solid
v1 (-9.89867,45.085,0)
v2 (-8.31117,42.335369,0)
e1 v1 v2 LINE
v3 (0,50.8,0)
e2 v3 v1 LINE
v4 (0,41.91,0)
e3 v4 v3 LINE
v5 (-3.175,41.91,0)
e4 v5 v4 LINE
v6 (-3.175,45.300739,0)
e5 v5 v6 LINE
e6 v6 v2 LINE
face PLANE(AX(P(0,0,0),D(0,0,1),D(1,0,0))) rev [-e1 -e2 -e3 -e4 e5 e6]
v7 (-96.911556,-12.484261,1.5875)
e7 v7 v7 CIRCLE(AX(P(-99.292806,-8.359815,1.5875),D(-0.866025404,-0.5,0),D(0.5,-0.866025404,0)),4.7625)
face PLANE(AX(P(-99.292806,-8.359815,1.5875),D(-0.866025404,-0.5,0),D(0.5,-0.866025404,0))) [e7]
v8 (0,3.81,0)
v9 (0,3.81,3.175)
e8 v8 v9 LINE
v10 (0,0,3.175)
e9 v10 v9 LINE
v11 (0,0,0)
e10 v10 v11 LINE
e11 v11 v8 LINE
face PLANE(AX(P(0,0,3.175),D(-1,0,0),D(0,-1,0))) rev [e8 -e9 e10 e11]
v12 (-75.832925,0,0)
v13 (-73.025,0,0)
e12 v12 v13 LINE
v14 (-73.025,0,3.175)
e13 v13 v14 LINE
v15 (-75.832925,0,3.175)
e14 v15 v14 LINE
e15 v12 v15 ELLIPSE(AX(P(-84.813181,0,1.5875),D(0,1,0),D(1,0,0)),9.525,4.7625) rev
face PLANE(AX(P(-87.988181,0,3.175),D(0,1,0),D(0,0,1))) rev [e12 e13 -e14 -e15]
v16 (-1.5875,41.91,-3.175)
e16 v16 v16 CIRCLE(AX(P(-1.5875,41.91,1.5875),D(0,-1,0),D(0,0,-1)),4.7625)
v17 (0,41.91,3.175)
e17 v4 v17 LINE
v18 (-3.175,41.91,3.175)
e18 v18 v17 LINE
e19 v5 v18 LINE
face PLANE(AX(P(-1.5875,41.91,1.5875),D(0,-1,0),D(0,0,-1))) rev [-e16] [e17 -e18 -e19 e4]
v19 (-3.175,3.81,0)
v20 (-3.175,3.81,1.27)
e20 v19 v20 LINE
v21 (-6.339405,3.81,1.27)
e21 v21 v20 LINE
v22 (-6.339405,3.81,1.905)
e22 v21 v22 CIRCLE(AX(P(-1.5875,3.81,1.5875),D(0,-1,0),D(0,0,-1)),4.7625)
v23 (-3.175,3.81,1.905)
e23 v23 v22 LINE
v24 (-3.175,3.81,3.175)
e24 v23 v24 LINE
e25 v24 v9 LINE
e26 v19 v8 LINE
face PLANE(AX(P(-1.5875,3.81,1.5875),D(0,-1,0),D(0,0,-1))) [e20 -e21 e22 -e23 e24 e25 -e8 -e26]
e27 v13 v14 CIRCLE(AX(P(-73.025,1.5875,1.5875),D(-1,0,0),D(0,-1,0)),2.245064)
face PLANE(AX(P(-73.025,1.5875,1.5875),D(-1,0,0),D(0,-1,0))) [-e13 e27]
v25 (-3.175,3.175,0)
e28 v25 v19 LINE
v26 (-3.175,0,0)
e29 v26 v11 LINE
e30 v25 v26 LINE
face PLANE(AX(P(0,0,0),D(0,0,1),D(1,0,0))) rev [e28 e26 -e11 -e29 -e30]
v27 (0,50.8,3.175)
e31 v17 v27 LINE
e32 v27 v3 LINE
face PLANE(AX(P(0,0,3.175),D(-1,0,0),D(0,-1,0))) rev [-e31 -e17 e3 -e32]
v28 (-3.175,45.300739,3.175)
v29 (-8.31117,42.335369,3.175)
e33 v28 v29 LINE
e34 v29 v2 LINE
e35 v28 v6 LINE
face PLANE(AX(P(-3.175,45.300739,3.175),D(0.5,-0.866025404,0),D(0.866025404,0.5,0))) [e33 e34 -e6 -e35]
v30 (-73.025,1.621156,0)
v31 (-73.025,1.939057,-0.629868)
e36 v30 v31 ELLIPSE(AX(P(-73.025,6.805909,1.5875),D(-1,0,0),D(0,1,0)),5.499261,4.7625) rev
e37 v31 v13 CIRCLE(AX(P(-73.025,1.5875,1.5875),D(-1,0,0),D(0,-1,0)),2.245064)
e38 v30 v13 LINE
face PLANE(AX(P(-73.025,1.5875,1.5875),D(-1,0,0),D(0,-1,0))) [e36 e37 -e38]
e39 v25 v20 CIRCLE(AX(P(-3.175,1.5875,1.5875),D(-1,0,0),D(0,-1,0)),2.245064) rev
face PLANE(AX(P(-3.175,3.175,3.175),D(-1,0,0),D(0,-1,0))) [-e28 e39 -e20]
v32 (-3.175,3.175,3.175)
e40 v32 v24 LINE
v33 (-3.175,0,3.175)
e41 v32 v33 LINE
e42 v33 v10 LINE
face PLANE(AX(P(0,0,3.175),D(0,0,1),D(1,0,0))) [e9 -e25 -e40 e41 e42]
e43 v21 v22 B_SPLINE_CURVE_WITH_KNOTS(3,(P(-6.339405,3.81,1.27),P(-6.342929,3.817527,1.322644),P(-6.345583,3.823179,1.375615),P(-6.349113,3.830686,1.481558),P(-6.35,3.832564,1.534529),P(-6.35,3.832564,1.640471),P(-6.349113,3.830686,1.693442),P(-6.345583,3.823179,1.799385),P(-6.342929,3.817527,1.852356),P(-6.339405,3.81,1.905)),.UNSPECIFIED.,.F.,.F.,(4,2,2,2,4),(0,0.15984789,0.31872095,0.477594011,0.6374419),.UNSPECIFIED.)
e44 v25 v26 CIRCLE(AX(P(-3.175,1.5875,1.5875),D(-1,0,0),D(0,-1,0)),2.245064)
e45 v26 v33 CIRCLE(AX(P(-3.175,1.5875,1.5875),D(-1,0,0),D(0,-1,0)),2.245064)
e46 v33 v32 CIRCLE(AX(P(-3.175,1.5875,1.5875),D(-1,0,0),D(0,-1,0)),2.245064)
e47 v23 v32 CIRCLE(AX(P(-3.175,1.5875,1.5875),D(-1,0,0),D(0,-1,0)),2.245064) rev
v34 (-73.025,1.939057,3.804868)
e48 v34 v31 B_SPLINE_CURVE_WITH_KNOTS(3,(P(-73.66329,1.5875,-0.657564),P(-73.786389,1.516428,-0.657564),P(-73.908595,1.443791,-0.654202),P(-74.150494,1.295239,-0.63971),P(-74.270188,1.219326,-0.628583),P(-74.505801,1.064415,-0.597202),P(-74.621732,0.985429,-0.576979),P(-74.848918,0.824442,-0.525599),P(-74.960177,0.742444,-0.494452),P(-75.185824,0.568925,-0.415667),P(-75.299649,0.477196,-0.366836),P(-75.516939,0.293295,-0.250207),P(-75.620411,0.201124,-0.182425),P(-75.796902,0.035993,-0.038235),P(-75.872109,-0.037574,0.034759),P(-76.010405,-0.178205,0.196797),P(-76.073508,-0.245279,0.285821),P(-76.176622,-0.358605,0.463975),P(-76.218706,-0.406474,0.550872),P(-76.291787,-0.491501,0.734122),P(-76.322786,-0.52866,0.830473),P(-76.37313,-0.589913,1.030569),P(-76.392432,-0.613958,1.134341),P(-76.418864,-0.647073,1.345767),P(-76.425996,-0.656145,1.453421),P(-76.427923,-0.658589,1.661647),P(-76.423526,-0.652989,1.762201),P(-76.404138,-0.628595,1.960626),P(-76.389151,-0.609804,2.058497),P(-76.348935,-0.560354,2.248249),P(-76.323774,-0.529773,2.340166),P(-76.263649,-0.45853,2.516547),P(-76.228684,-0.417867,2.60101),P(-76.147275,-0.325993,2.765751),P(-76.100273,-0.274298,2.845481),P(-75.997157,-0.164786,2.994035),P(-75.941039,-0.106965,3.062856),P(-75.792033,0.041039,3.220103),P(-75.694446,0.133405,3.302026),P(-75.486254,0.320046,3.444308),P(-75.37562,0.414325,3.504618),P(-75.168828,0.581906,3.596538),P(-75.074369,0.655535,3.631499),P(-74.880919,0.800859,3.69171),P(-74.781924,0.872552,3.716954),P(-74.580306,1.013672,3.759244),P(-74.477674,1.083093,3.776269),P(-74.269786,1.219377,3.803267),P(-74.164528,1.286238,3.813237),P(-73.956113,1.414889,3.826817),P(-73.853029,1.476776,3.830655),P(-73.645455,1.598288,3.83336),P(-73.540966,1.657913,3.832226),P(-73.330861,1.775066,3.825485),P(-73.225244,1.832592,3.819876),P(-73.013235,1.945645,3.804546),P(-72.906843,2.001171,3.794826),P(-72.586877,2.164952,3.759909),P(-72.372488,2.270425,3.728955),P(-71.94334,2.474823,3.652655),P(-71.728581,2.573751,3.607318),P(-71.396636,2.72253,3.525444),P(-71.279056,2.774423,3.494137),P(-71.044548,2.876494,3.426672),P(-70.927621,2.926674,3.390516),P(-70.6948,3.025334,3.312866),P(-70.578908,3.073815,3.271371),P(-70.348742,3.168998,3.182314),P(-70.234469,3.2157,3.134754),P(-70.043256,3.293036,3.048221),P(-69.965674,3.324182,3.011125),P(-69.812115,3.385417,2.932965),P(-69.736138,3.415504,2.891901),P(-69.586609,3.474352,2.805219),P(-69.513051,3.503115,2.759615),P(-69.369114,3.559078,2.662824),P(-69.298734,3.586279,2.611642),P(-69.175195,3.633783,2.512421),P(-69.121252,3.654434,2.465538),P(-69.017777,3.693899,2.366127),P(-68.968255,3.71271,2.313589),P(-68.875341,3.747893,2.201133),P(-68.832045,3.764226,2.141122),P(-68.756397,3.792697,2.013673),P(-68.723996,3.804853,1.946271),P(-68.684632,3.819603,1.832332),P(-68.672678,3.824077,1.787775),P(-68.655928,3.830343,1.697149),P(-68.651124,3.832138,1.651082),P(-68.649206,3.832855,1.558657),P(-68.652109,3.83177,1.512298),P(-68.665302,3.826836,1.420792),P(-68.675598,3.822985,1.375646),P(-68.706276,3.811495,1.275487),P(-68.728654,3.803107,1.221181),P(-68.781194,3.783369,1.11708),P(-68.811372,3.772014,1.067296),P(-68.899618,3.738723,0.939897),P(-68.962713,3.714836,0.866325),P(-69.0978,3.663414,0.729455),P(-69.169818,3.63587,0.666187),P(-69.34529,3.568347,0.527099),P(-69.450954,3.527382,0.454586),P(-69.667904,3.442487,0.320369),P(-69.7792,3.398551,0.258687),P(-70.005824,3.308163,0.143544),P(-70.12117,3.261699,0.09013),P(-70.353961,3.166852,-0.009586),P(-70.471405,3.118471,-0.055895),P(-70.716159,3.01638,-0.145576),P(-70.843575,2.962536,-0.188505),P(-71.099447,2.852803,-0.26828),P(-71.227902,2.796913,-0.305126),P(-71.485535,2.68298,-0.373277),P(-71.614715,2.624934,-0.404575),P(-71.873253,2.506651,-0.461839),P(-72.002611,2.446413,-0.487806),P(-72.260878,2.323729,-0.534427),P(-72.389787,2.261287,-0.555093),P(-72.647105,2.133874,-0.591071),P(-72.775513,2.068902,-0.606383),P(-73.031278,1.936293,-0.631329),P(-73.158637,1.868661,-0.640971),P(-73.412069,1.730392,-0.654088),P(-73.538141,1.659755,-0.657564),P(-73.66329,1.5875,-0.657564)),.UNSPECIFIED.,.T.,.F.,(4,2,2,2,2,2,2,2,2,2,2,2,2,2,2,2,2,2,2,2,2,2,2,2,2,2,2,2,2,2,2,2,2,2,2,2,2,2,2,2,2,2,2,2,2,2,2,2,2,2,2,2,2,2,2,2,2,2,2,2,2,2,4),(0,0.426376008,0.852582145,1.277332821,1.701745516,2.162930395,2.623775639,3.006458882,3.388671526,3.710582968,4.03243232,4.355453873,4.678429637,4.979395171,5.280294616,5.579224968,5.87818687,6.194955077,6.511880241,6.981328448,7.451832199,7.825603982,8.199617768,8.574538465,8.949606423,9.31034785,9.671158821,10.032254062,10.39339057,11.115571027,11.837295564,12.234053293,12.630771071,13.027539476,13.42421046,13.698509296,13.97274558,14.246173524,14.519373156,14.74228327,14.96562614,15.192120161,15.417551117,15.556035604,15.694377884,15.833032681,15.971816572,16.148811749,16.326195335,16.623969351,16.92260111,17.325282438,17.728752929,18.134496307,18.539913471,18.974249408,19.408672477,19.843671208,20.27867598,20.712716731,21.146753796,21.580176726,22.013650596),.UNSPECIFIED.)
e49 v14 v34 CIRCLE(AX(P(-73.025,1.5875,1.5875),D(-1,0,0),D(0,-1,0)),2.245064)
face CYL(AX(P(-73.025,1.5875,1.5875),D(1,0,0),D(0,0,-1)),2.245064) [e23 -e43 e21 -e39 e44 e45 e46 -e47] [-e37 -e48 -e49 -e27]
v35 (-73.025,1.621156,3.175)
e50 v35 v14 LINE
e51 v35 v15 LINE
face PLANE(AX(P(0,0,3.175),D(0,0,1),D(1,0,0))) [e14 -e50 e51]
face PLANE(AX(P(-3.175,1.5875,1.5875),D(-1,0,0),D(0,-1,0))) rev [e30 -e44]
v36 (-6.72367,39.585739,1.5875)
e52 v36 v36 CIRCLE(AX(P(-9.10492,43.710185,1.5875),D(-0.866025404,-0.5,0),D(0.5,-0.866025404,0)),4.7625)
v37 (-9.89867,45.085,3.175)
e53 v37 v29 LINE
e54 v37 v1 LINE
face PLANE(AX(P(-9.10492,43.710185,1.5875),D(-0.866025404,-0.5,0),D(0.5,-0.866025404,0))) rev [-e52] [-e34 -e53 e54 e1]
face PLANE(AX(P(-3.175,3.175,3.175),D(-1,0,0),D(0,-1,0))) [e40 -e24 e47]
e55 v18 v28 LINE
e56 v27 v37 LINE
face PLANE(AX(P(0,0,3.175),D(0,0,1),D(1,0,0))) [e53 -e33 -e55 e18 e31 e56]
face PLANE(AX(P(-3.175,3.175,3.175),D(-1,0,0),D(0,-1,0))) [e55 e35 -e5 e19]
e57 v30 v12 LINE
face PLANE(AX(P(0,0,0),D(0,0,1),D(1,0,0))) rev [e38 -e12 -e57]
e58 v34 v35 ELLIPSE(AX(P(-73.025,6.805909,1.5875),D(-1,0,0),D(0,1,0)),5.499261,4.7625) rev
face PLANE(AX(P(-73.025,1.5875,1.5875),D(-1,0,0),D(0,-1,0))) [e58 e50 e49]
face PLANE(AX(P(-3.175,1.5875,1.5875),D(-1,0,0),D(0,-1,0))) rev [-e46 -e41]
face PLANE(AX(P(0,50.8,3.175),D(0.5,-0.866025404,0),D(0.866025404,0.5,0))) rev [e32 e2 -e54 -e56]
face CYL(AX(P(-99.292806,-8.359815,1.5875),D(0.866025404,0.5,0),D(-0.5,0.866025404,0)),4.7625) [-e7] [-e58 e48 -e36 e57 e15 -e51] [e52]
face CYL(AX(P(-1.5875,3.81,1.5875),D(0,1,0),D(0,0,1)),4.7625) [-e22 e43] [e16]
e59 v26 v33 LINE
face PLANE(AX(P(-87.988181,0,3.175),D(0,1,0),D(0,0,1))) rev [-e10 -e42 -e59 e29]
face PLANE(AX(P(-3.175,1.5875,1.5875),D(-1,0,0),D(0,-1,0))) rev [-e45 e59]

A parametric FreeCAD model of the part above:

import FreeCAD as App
import Part
import Sketcher
from FreeCAD import Vector
Q = App.Units.Quantity

doc = App.newDocument("Part")
params = doc.addObject("Spreadsheet::Sheet", "Params")
for row, (alias, value) in enumerate([
    ("sketch1_height", "2 in"),
    ("sketch1_length", "4 in"),
    ("pad1_length", "0.125 in"),
    ("pad2_length", "2.75 in"),
    ("sketch3_diameter", "0.375 in"),
    ("pad3_length", "1.5 in"),
    ("sketch4_diameter", "0.375 in"),
    ("pad4_length", "4.1 in"),
], start=1):
    params.set(f"A{row}", alias)
    params.set(f"B{row}", "=" + value)
    params.setAlias(f"B{row}", alias)

body = doc.addObject("PartDesign::Body", "Body")

# Sketch on XY plane
sketch1 = body.newObject("Sketcher::SketchObject", "Sketch")
sketch1.AttachmentSupport = (doc.getObject("XY_Plane"), [""])
sketch1.MapMode = "FlatFace"
sketch1.addGeometry(Part.LineSegment(Vector(0, 0, 0), Vector(0, 50.8, 0)), False)
sketch1.addGeometry(Part.LineSegment(Vector(0, 50.8, 0), Vector(-87.988181, 0, 0)), False)
sketch1.addGeometry(Part.LineSegment(Vector(-87.988181, 0, 0), Vector(0, 0, 0)), False)
sketch1.addGeometry(Part.LineSegment(Vector(-3.175, 3.175, 0), Vector(-76.13892, 3.175, 0)), False)
sketch1.addGeometry(Part.LineSegment(Vector(-76.13892, 3.175, 0), Vector(-3.175, 45.300739, 0)), False)
sketch1.addGeometry(Part.LineSegment(Vector(-3.175, 45.300739, 0), Vector(-3.175, 3.175, 0)), False)
sketch1.addConstraint(Sketcher.Constraint("Coincident", 0, 2, 1, 1))
sketch1.addConstraint(Sketcher.Constraint("Coincident", 1, 2, 2, 1))
sketch1.addConstraint(Sketcher.Constraint("Coincident", 2, 2, 0, 1))
sketch1.addConstraint(Sketcher.Constraint("Coincident", 3, 2, 4, 1))
sketch1.addConstraint(Sketcher.Constraint("Coincident", 4, 2, 5, 1))
sketch1.addConstraint(Sketcher.Constraint("Coincident", 5, 2, 3, 1))
sketch1.addConstraint(Sketcher.Constraint("Vertical", 0))
sketch1.addConstraint(Sketcher.Constraint("Horizontal", 2))
sketch1.addConstraint(Sketcher.Constraint("Horizontal", 3))
sketch1.addConstraint(Sketcher.Constraint("Vertical", 5))
sketch1.addConstraint(Sketcher.Constraint("Coincident", 2, 2, -1, 1))
sketch1.addConstraint(Sketcher.Constraint("Parallel", 1, 4))
sketch1.addConstraint(Sketcher.Constraint("DistanceY", 0, 1, 0, 2, Q("2 in")))
sketch1.addConstraint(Sketcher.Constraint("Distance", 1, Q("4 in")))
sketch1.addConstraint(Sketcher.Constraint("DistanceY", -1, 1, 3, 2, Q("0.125 in")))
sketch1.addConstraint(Sketcher.Constraint("DistanceX", 4, 2, -1, 1, Q("0.125 in")))
sketch1.addConstraint(Sketcher.Constraint("DistanceX", 3, 2, 3, 1, Q("72.96392 mm")))
sketch1.setExpression("Constraints[12]", "Params.sketch1_height")
sketch1.setExpression("Constraints[13]", "Params.sketch1_length")
pad1 = body.newObject("PartDesign::Pad", "Pad")
pad1.Profile = sketch1
pad1.setExpression("Length", "Params.pad1_length")

# Sketch on YZ plane
sketch2 = body.newObject("Sketcher::SketchObject", "Sketch001")
sketch2.AttachmentSupport = (doc.getObject("YZ_Plane"), [""])
sketch2.MapMode = "FlatFace"
sketch2.AttachmentOffset = App.Placement(Vector(0, 0, -0.125 * 25.4), App.Rotation())
sketch2.addGeometry(Part.Circle(Vector(1.5875, 1.5875, 0), Vector(0, 0, 1), 2.245064), False)
sketch2.addConstraint(Sketcher.Constraint("Diameter", 0, Q("4.490128 mm")))
sketch2.addConstraint(Sketcher.Constraint("DistanceX", -1, 1, 0, 3, Q("0.0625 in")))
sketch2.addConstraint(Sketcher.Constraint("DistanceY", -1, 1, 0, 3, Q("0.0625 in")))
pad2 = body.newObject("PartDesign::Pad", "Pad001")
pad2.Profile = sketch2
pad2.setExpression("Length", "Params.pad2_length")
pad2.Reversed = True

# Sketch on XZ plane
sketch3 = body.newObject("Sketcher::SketchObject", "Sketch002")
sketch3.AttachmentSupport = (doc.getObject("XZ_Plane"), [""])
sketch3.MapMode = "FlatFace"
sketch3.AttachmentOffset = App.Placement(Vector(0, 0, -0.9 * 25.4), App.Rotation())
sketch3.addGeometry(Part.Circle(Vector(-1.5875, 1.5875, 0), Vector(0, 0, 1), 4.7625), False)
sketch3.addConstraint(Sketcher.Constraint("Diameter", 0, Q("0.375 in")))
sketch3.addConstraint(Sketcher.Constraint("DistanceX", 0, 3, -1, 1, Q("0.0625 in")))
sketch3.addConstraint(Sketcher.Constraint("DistanceY", -1, 1, 0, 3, Q("0.0625 in")))
sketch3.setExpression("Constraints[0]", "Params.sketch3_diameter")
pad3 = body.newObject("PartDesign::Pad", "Pad002")
pad3.Profile = sketch3
pad3.setExpression("Length", "Params.pad3_length")
pad3.Midplane = True

# Sketch on an angled plane
sketch4 = body.newObject("Sketcher::SketchObject", "Sketch003")
sketch4.Placement = App.Placement(Vector(-32.995568, -19.05, 0), App.Rotation(Vector(0, 0, -1), Vector(0.5, -0.866025404, 0), Vector(-0.866025404, -0.5, 0), "ZXY"))
sketch4.addGeometry(Part.Circle(Vector(-1.5875, -42.406591, 0), Vector(0, 0, 1), 4.7625), False)
sketch4.addConstraint(Sketcher.Constraint("Diameter", 0, Q("0.375 in")))
sketch4.addConstraint(Sketcher.Constraint("DistanceX", 0, 3, -1, 1, Q("0.0625 in")))
sketch4.addConstraint(Sketcher.Constraint("DistanceY", 0, 3, -1, 1, Q("42.406591 mm")))
sketch4.setExpression("Constraints[0]", "Params.sketch4_diameter")
pad4 = body.newObject("PartDesign::Pad", "Pad003")
pad4.Profile = sketch4
pad4.setExpression("Length", "Params.pad4_length")
pad4.Midplane = True

doc.recompute()
